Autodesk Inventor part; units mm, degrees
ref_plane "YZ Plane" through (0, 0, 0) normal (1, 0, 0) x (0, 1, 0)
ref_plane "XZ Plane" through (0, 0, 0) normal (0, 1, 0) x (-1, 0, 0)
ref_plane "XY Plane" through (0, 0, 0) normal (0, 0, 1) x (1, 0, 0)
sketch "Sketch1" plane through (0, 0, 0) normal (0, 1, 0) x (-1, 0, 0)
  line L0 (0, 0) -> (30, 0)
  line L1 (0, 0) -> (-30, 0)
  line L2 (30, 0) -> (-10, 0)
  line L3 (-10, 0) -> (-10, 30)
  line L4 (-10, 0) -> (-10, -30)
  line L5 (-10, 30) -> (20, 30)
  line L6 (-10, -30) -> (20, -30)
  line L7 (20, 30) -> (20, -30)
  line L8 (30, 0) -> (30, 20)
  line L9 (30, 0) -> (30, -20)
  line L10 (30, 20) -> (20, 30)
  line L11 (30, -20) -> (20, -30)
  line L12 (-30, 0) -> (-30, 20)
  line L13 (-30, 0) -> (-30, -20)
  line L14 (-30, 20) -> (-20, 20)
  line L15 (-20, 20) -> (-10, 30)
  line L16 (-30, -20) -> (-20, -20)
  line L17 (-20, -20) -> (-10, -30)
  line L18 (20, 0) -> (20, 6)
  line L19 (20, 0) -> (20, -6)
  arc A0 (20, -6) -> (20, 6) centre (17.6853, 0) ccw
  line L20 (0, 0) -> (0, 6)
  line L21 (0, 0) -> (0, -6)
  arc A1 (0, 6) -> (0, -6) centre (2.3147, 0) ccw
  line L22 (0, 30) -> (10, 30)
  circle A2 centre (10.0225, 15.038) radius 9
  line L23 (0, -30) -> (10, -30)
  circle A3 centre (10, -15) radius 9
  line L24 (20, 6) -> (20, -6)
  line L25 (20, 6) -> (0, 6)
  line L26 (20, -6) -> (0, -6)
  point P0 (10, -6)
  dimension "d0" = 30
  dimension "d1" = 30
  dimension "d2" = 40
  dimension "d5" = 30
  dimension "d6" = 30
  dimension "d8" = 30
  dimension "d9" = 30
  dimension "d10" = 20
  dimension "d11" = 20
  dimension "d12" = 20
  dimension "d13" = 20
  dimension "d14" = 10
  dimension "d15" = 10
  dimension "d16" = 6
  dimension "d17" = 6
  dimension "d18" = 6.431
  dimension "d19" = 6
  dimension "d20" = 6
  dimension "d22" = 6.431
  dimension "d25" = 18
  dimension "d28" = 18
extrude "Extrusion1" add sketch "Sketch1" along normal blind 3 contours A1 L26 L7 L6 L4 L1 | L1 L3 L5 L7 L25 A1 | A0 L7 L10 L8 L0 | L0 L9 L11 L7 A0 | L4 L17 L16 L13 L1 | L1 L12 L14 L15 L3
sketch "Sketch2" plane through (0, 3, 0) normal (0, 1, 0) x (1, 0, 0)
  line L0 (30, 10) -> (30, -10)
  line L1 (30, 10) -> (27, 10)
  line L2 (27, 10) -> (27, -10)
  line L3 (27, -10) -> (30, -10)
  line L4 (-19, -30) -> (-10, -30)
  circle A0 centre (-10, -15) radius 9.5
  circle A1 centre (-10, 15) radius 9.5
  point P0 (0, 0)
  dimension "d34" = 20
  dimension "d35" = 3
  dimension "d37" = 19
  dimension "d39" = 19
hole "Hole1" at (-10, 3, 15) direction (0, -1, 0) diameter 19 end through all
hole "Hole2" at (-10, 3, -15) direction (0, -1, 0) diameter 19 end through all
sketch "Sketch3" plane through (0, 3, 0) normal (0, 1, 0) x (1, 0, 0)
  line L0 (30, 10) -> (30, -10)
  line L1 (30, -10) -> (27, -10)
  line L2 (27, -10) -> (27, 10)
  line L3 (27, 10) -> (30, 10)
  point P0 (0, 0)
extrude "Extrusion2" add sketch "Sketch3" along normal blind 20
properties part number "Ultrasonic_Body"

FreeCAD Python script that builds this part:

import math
import FreeCAD as App
import Part
import Sketcher


def add_polygon(sketch, points):
    """Adds a closed chain of lines whose ends are joined by coincident constraints."""
    first, n = sketch.GeometryCount, len(points)
    for a, b in zip(points, points[1:] + points[:1]):
        sketch.addGeometry(Part.LineSegment(App.Vector(*a, 0), App.Vector(*b, 0)), False)
    for i in range(n):
        sketch.addConstraint(Sketcher.Constraint("Coincident", first + i, 2, first + (i + 1) % n, 1))

doc = App.newDocument("Part")
params = doc.addObject("Spreadsheet::Sheet", "Params")
for row, (alias, value) in enumerate([
    ("sketch1_diameter", "18 mm"),
    ("sketch1_width", "30 mm"),
    ("sketch1_height", "40 mm"),
    ("pad1_length", "3 mm"),
    ("sketch2_diameter", "19 mm"),
    ("hole_diameter", "19 mm"),
    ("sketch3_diameter", "19 mm"),
    ("hole2_diameter", "19 mm"),
    ("sketch4_width", "3 mm"),
    ("sketch4_height", "20 mm"),
    ("pad2_length", "20 mm"),
], start=1):
    params.set(f"A{row}", alias)
    params.set(f"B{row}", "=" + value)
    params.setAlias(f"B{row}", alias)

body = doc.addObject("PartDesign::Body", "Body")

# Sketch on XZ plane
sketch1 = body.newObject("Sketcher::SketchObject", "Sketch")
sketch1.AttachmentSupport = (doc.getObject("XZ_Plane"), [""])
sketch1.MapMode = "FlatFace"
add_polygon(sketch1, [(-20, -30), (-30, -20), (-30, 20), (-20, 30), (10, 30), (20, 20), (30, 20), (30, -20), (20, -20), (10, -30)])  # lines 0-9
sketch1.addGeometry(Part.LineSegment(App.Vector(-10, -6, 0), App.Vector(0, -6, 0)), False)  # 10
sketch1.addGeometry(Part.ArcOfCircle(Part.Circle(App.Vector(-2, 0, 0), App.Vector(0, 0, 1), 6), math.radians(-69), math.radians(69)), False)  # 11
sketch1.addGeometry(Part.LineSegment(App.Vector(0, 6, 0), App.Vector(-20, 6, 0)), False)  # 12
sketch1.addGeometry(Part.ArcOfCircle(Part.Circle(App.Vector(-18, 0, 0), App.Vector(0, 0, 1), 6), math.radians(111), math.radians(249)), False)  # 13
sketch1.addGeometry(Part.LineSegment(App.Vector(-20, -6, 0), App.Vector(-10, -6, 0)), False)  # 14
sketch1.addGeometry(Part.Circle(App.Vector(-10, -15, 0), App.Vector(0, 0, 1), 9), False)  # 15
sketch1.addGeometry(Part.Circle(App.Vector(-10, 15, 0), App.Vector(0, 0, 1), 9), False)  # 16
sketch1.addConstraint(Sketcher.Constraint("Coincident", 10, 2, 11, 1))
sketch1.addConstraint(Sketcher.Constraint("Coincident", 11, 2, 12, 1))
sketch1.addConstraint(Sketcher.Constraint("Coincident", 12, 2, 13, 1))
sketch1.addConstraint(Sketcher.Constraint("Coincident", 13, 2, 14, 1))
sketch1.addConstraint(Sketcher.Constraint("Coincident", 14, 2, 10, 1))
sketch1.addConstraint(Sketcher.Constraint("Vertical", 1))
sketch1.addConstraint(Sketcher.Constraint("Horizontal", 3))
sketch1.addConstraint(Sketcher.Constraint("Horizontal", 5))
sketch1.addConstraint(Sketcher.Constraint("Vertical", 6))
sketch1.addConstraint(Sketcher.Constraint("Horizontal", 7))
sketch1.addConstraint(Sketcher.Constraint("Horizontal", 9))
sketch1.addConstraint(Sketcher.Constraint("Horizontal", 10))
sketch1.addConstraint(Sketcher.Constraint("Horizontal", 12))
sketch1.addConstraint(Sketcher.Constraint("Horizontal", 14))
sketch1.addConstraint(Sketcher.Constraint("Equal", 11, 13))
sketch1.addConstraint(Sketcher.Constraint("Equal", 15, 16))
sketch1.addConstraint(Sketcher.Constraint("Symmetric", 0, 2, 5, 2, -1, 1))
sketch1.addConstraint(Sketcher.Constraint("Symmetric", 10, 2, 11, 2, -1, 1))
sketch1.addConstraint(Sketcher.Constraint("Symmetric", 4, 2, 7, 2, -1))
sketch1.addConstraint(Sketcher.Constraint("Symmetric", 3, 2, 8, 2, -1))
sketch1.addConstraint(Sketcher.Constraint("PointOnObject", 11, 3, -1))
sketch1.addConstraint(Sketcher.Constraint("PointOnObject", 13, 3, -1))
sketch1.addConstraint(Sketcher.Constraint("Perpendicular", 0, 2))
sketch1.addConstraint(Sketcher.Constraint("Perpendicular", 2, 4))
sketch1.addConstraint(Sketcher.Constraint("Perpendicular", 4, 8))
sketch1.addConstraint(Sketcher.Constraint("Horizontal", 1, 2, 4, 2))
sketch1.addConstraint(Sketcher.Constraint("Vertical", 9, 2, 12, 2))
sketch1.addConstraint(Sketcher.Constraint("Vertical", 15, 3, 14, 2))
sketch1.addConstraint(Sketcher.Constraint("Equal", 7, 10))
sketch1.addConstraint(Sketcher.Constraint("Equal", 10, 14))
sketch1.addConstraint(Sketcher.Constraint("Diameter", 15, 18.0))
sketch1.addConstraint(Sketcher.Constraint("DistanceX", 3, 1, 3, 2, 30.0))
sketch1.addConstraint(Sketcher.Constraint("DistanceY", 1, 1, 1, 2, 40.0))
sketch1.addConstraint(Sketcher.Constraint("DistanceX", 0, 2, -1, 1, 30.0))
sketch1.addConstraint(Sketcher.Constraint("DistanceY", 10, 2, -1, 1, 6.0))
sketch1.addConstraint(Sketcher.Constraint("Radius", 11, 6.431))
sketch1.addConstraint(Sketcher.Constraint("DistanceY", 15, 3, -1, 1, 15.0))
sketch1.addConstraint(Sketcher.Constraint("DistanceY", -1, 1, 16, 3, 15.038))
sketch1.addConstraint(Sketcher.Constraint("DistanceX", 16, 3, -1, 1, 10.0225))
sketch1.setExpression("Constraints[40]", "Params.sketch1_diameter")
sketch1.setExpression("Constraints[41]", "Params.sketch1_width")
sketch1.setExpression("Constraints[42]", "Params.sketch1_height")
pad1 = body.newObject("PartDesign::Pad", "Pad")
pad1.Profile = sketch1
pad1.setExpression("Length", "Params.pad1_length")
pad1.Reversed = True

# Sketch on XZ plane
sketch2 = body.newObject("Sketcher::SketchObject", "Sketch001")
sketch2.AttachmentSupport = (doc.getObject("XZ_Plane"), [""])
sketch2.MapMode = "FlatFace"
sketch2.AttachmentOffset = App.Placement(App.Vector(0, 0, -3), App.Rotation())
sketch2.addGeometry(Part.Circle(App.Vector(-10, 15, 0), App.Vector(0, 0, 1), 10), False)
sketch2.addConstraint(Sketcher.Constraint("Diameter", 0, 19.0))
sketch2.addConstraint(Sketcher.Constraint("DistanceX", 0, 3, -1, 1, 10.0))
sketch2.addConstraint(Sketcher.Constraint("DistanceY", -1, 1, 0, 3, 15.0))
sketch2.setExpression("Constraints[0]", "Params.sketch2_diameter")
doc.recompute()
hole = body.newObject("PartDesign::Hole", "Hole")
hole.Profile = sketch2
hole.ThreadType = "None"
hole.setExpression("Diameter", "Params.hole_diameter")
hole.DepthType = "ThroughAll"
hole.Reversed = True

# Sketch on XZ plane
sketch3 = body.newObject("Sketcher::SketchObject", "Sketch002")
sketch3.AttachmentSupport = (doc.getObject("XZ_Plane"), [""])
sketch3.MapMode = "FlatFace"
sketch3.AttachmentOffset = App.Placement(App.Vector(0, 0, -3), App.Rotation())
sketch3.addGeometry(Part.Circle(App.Vector(-10, -15, 0), App.Vector(0, 0, 1), 10), False)
sketch3.addConstraint(Sketcher.Constraint("Diameter", 0, 19.0))
sketch3.addConstraint(Sketcher.Constraint("DistanceX", 0, 3, -1, 1, 10.0))
sketch3.addConstraint(Sketcher.Constraint("DistanceY", 0, 3, -1, 1, 15.0))
sketch3.setExpression("Constraints[0]", "Params.sketch3_diameter")
doc.recompute()
hole2 = body.newObject("PartDesign::Hole", "Hole001")
hole2.Profile = sketch3
hole2.ThreadType = "None"
hole2.setExpression("Diameter", "Params.hole2_diameter")
hole2.DepthType = "ThroughAll"
hole2.Reversed = True

# Sketch on XZ plane
sketch4 = body.newObject("Sketcher::SketchObject", "Sketch003")
sketch4.AttachmentSupport = (doc.getObject("XZ_Plane"), [""])
sketch4.MapMode = "FlatFace"
sketch4.AttachmentOffset = App.Placement(App.Vector(0, 0, -3), App.Rotation())
add_polygon(sketch4, [(30, 10), (30, -10), (27, -10), (27, 10)])  # lines 0-3
sketch4.addConstraint(Sketcher.Constraint("Vertical", 0))
sketch4.addConstraint(Sketcher.Constraint("Horizontal", 1))
sketch4.addConstraint(Sketcher.Constraint("Vertical", 2))
sketch4.addConstraint(Sketcher.Constraint("Horizontal", 3))
sketch4.addConstraint(Sketcher.Constraint("DistanceX", 1, 2, 1, 1, 3.0))
sketch4.addConstraint(Sketcher.Constraint("DistanceY", 0, 2, 0, 1, 20.0))
sketch4.addConstraint(Sketcher.Constraint("DistanceX", -1, 1, 0, 2, 30.0))
sketch4.addConstraint(Sketcher.Constraint("DistanceY", 0, 2, -1, 1, 10.0))
sketch4.setExpression("Constraints[8]", "Params.sketch4_width")
sketch4.setExpression("Constraints[9]", "Params.sketch4_height")
pad2 = body.newObject("PartDesign::Pad", "Pad001")
pad2.Profile = sketch4
pad2.setExpression("Length", "Params.pad2_length")
pad2.Reversed = True

doc.recompute()
